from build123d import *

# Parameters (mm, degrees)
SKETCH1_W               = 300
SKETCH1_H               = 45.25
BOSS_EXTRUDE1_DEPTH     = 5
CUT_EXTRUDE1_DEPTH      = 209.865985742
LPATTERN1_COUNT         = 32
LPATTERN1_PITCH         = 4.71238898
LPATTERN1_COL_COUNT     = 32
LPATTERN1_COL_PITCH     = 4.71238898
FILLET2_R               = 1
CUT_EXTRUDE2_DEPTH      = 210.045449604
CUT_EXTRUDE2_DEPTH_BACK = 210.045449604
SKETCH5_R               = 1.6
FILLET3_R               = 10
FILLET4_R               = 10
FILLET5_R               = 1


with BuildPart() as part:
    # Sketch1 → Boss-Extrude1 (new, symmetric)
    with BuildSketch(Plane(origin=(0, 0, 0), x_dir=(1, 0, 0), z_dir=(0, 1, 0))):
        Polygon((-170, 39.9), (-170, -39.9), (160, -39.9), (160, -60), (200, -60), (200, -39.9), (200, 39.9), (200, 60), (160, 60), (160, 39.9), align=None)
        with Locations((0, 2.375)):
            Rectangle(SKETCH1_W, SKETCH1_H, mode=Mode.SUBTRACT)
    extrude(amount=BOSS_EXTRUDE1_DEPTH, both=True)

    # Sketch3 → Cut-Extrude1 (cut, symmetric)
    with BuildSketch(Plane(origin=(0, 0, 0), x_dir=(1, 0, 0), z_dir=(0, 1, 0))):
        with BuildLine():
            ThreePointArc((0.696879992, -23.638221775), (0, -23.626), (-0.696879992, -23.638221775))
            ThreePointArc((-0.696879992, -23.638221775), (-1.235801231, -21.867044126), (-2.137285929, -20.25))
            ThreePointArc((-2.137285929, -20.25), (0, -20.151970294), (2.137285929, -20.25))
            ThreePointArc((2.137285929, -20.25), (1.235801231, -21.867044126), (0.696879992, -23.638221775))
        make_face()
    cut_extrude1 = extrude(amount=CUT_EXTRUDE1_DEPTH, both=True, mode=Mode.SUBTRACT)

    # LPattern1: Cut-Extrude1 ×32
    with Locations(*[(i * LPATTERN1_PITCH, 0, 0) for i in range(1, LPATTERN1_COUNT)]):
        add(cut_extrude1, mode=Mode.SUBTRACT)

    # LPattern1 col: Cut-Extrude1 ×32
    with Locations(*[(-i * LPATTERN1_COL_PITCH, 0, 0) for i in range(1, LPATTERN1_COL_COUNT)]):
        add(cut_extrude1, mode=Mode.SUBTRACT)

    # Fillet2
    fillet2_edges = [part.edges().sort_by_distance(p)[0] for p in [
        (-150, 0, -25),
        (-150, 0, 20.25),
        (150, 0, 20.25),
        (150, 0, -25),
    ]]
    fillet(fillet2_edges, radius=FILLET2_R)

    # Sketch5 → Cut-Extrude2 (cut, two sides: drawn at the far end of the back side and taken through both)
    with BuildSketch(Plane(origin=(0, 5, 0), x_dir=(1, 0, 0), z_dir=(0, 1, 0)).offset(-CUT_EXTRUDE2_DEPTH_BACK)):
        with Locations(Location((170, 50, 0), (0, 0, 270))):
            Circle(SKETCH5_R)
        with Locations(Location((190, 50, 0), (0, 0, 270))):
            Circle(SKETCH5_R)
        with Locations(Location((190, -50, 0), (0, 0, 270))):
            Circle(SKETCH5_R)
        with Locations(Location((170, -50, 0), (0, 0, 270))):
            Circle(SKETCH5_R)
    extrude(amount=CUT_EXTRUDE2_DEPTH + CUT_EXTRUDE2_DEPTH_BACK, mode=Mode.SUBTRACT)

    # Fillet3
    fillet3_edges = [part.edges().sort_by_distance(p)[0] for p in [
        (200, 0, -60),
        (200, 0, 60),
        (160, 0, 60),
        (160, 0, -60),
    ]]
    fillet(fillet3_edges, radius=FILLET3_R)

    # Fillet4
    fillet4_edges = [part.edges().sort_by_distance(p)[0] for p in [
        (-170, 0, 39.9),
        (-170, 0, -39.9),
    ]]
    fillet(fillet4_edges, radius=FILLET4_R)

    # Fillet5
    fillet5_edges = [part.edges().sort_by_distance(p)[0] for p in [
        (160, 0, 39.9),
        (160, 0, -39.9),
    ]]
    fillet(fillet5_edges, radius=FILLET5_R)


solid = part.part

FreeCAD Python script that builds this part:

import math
import FreeCAD as App
import Part
import Sketcher

V = App.Vector


def edges_at(feature, points):
    """Names of the edges that pass closest to the given points."""
    edges = feature.Shape.Edges
    near = lambda p: min(range(len(edges)), key=lambda i: edges[i].distToShape(Part.Vertex(*p))[0])
    return sorted({f"Edge{near(p) + 1}" for p in points})

doc = App.newDocument("Part")
params = doc.addObject("Spreadsheet::Sheet", "Params")
for row, (alias, value) in enumerate([
    ("sketch1_width", "330 mm"),
    ("sketch1_width2", "40 mm"),
    ("sketch1_width3", "300 mm"),
    ("sketch1_height", "120 mm"),
    ("sketch1_height2", "79.8 mm"),
    ("pad1_length", "10 mm"),
    ("sketch2_radius", "8.7 mm"),
    ("pocket1_length", "419.731971 mm"),
    ("linearpattern_pitch", "4.712389 mm"),
    ("linearpattern2_pitch", "4.712389 mm"),
    ("fillet_radius", "1 mm"),
    ("sketch3_diameter", "3.2 mm"),
    ("fillet2_radius", "10 mm"),
    ("fillet3_radius", "10 mm"),
    ("fillet4_radius", "1 mm"),
], start=1):
    params.set(f"A{row}", alias)
    params.set(f"B{row}", "=" + value)
    params.setAlias(f"B{row}", alias)

body = doc.addObject("PartDesign::Body", "Body")

# Sketch on XZ plane
sketch1 = doc.addObject("Sketcher::SketchObject", "Sketch")
body.addObject(sketch1)
sketch1.AttachmentSupport = (doc.XZ_Plane, [""])
sketch1.MapMode = "FlatFace"
sketch1.addGeometry(Part.LineSegment(V(-170, -39.9, 0), V(-170, 39.9, 0)), False)
sketch1.addGeometry(Part.LineSegment(V(-170, 39.9, 0), V(160, 39.9, 0)), False)
sketch1.addGeometry(Part.LineSegment(V(160, 39.9, 0), V(160, 60, 0)), False)
sketch1.addGeometry(Part.LineSegment(V(160, 60, 0), V(200, 60, 0)), False)
sketch1.addGeometry(Part.LineSegment(V(200, 60, 0), V(200, -60, 0)), False)
sketch1.addGeometry(Part.LineSegment(V(200, -60, 0), V(160, -60, 0)), False)
sketch1.addGeometry(Part.LineSegment(V(160, -60, 0), V(160, -39.9, 0)), False)
sketch1.addGeometry(Part.LineSegment(V(160, -39.9, 0), V(-170, -39.9, 0)), False)
sketch1.addGeometry(Part.LineSegment(V(150, 20.25, 0), V(-150, 20.25, 0)), False)
sketch1.addGeometry(Part.LineSegment(V(-150, 20.25, 0), V(-150, -25, 0)), False)
sketch1.addGeometry(Part.LineSegment(V(-150, -25, 0), V(150, -25, 0)), False)
sketch1.addGeometry(Part.LineSegment(V(150, -25, 0), V(150, 20.25, 0)), False)
sketch1.addConstraint(Sketcher.Constraint("Coincident", 0, 2, 1, 1))
sketch1.addConstraint(Sketcher.Constraint("Coincident", 1, 2, 2, 1))
sketch1.addConstraint(Sketcher.Constraint("Coincident", 2, 2, 3, 1))
sketch1.addConstraint(Sketcher.Constraint("Coincident", 3, 2, 4, 1))
sketch1.addConstraint(Sketcher.Constraint("Coincident", 4, 2, 5, 1))
sketch1.addConstraint(Sketcher.Constraint("Coincident", 5, 2, 6, 1))
sketch1.addConstraint(Sketcher.Constraint("Coincident", 6, 2, 7, 1))
sketch1.addConstraint(Sketcher.Constraint("Coincident", 7, 2, 0, 1))
sketch1.addConstraint(Sketcher.Constraint("Coincident", 8, 2, 9, 1))
sketch1.addConstraint(Sketcher.Constraint("Coincident", 9, 2, 10, 1))
sketch1.addConstraint(Sketcher.Constraint("Coincident", 10, 2, 11, 1))
sketch1.addConstraint(Sketcher.Constraint("Coincident", 11, 2, 8, 1))
sketch1.addConstraint(Sketcher.Constraint("Vertical", 0))
sketch1.addConstraint(Sketcher.Constraint("Horizontal", 1))
sketch1.addConstraint(Sketcher.Constraint("Vertical", 2))
sketch1.addConstraint(Sketcher.Constraint("Horizontal", 3))
sketch1.addConstraint(Sketcher.Constraint("Vertical", 4))
sketch1.addConstraint(Sketcher.Constraint("Horizontal", 5))
sketch1.addConstraint(Sketcher.Constraint("Vertical", 6))
sketch1.addConstraint(Sketcher.Constraint("Horizontal", 7))
sketch1.addConstraint(Sketcher.Constraint("Horizontal", 8))
sketch1.addConstraint(Sketcher.Constraint("Vertical", 9))
sketch1.addConstraint(Sketcher.Constraint("Horizontal", 10))
sketch1.addConstraint(Sketcher.Constraint("Vertical", 11))
sketch1.addConstraint(Sketcher.Constraint("Symmetric", 2, 2, 5, 2, -1))
sketch1.addConstraint(Sketcher.Constraint("Equal", 2, 6))
sketch1.addConstraint(Sketcher.Constraint("DistanceX", 1, 1, 1, 2, 330.0))
sketch1.addConstraint(Sketcher.Constraint("DistanceX", 3, 1, 3, 2, 40.0))
sketch1.addConstraint(Sketcher.Constraint("DistanceX", 8, 2, 8, 1, 300.0))
sketch1.addConstraint(Sketcher.Constraint("DistanceY", 4, 2, 4, 1, 120.0))
sketch1.addConstraint(Sketcher.Constraint("DistanceY", 0, 1, 0, 2, 79.8))
sketch1.addConstraint(Sketcher.Constraint("DistanceX", 0, 2, -1, 1, 170.0))
sketch1.addConstraint(Sketcher.Constraint("DistanceX", 8, 2, -1, 1, 150.0))
sketch1.addConstraint(Sketcher.Constraint("DistanceY", 9, 2, -1, 1, 25.0))
sketch1.addConstraint(Sketcher.Constraint("DistanceY", 9, 2, 9, 1, 45.25))
sketch1.setExpression("Constraints[26]", "Params.sketch1_width")
sketch1.setExpression("Constraints[27]", "Params.sketch1_width2")
sketch1.setExpression("Constraints[28]", "Params.sketch1_width3")
sketch1.setExpression("Constraints[29]", "Params.sketch1_height")
sketch1.setExpression("Constraints[30]", "Params.sketch1_height2")
pad1 = doc.addObject("PartDesign::Pad", "Pad")
body.addObject(pad1)
pad1.Profile = sketch1
pad1.setExpression("Length", "Params.pad1_length")
pad1.Midplane = True

# Sketch on XZ plane
sketch2 = doc.addObject("Sketcher::SketchObject", "Sketch001")
body.addObject(sketch2)
sketch2.AttachmentSupport = (doc.XZ_Plane, [""])
sketch2.MapMode = "FlatFace"
sketch2.addGeometry(Part.ArcOfCircle(Part.Circle(V(0, 43.499999, 0), V(0, 0, 1), 19.873999), math.radians(-92.009483), math.radians(-87.990517)), False)
sketch2.addGeometry(Part.ArcOfCircle(Part.Circle(V(9.24233, 25.270792, 0), V(0, 0, 1), 8.7), math.radians(-169.184228), math.radians(-144.752996)), False)
sketch2.addGeometry(Part.ArcOfCircle(Part.Circle(V(0, 43.5, 0), V(0, 0, 1), 23.34803), math.radians(-95.252226), math.radians(-84.747774)), False)
sketch2.addGeometry(Part.ArcOfCircle(Part.Circle(V(-9.24233, 25.270792, 0), V(0, 0, 1), 8.7), math.radians(-35.247004), math.radians(-10.815772)), False)
sketch2.addConstraint(Sketcher.Constraint("Coincident", 0, 2, 1, 1))
sketch2.addConstraint(Sketcher.Constraint("Coincident", 1, 2, 2, 2))
sketch2.addConstraint(Sketcher.Constraint("Coincident", 2, 1, 3, 1))
sketch2.addConstraint(Sketcher.Constraint("Coincident", 3, 2, 0, 1))
sketch2.addConstraint(Sketcher.Constraint("Coincident", 2, 3, 0, 3))
sketch2.addConstraint(Sketcher.Constraint("Equal", 1, 3))
sketch2.addConstraint(Sketcher.Constraint("Symmetric", 1, 3, 3, 3, -2))
sketch2.addConstraint(Sketcher.Constraint("PointOnObject", 0, 3, -2))
sketch2.addConstraint(Sketcher.Constraint("Radius", 1, 8.7))
sketch2.addConstraint(Sketcher.Constraint("Radius", 0, 19.873999))
sketch2.addConstraint(Sketcher.Constraint("DistanceY", -1, 1, 0, 3, 43.499999))
sketch2.addConstraint(Sketcher.Constraint("DistanceY", -1, 1, 1, 2, 20.25))
sketch2.addConstraint(Sketcher.Constraint("Radius", 2, 23.34803))
sketch2.addConstraint(Sketcher.Constraint("DistanceX", -1, 1, 1, 3, 9.24233))
sketch2.setExpression("Constraints[8]", "Params.sketch2_radius")
pocket1 = doc.addObject("PartDesign::Pocket", "Pocket")
body.addObject(pocket1)
pocket1.Profile = sketch2
pocket1.setExpression("Length", "Params.pocket1_length")
pocket1.Midplane = True
doc.recompute()

linearpattern = doc.addObject("PartDesign::LinearPattern", "LinearPattern")
body.addObject(linearpattern)
linearpattern.Originals = [pocket1]
linearpattern.Direction = (doc.X_Axis, [""])
linearpattern.Mode = "offset"
linearpattern.setExpression("Offset", "Params.linearpattern_pitch")
linearpattern.Occurrences = 32
body.Tip = linearpattern
doc.recompute()

linearpattern2 = doc.addObject("PartDesign::LinearPattern", "LinearPattern001")
body.addObject(linearpattern2)
linearpattern2.Originals = [pocket1]
linearpattern2.Direction = (doc.X_Axis, [""])
linearpattern2.Mode = "offset"
linearpattern2.setExpression("Offset", "Params.linearpattern2_pitch")
linearpattern2.Occurrences = 32
linearpattern2.Reversed = True
body.Tip = linearpattern2
doc.recompute()

fillet = doc.addObject("PartDesign::Fillet", "Fillet")
body.addObject(fillet)
fillet.Base = (linearpattern2, edges_at(linearpattern2, [
    (-150, 0, -25),
    (-150, 0, 20.25),
    (150, 0, 20.25),
    (150, 0, -25),
]))
fillet.setExpression("Radius", "Params.fillet_radius")

# Sketch on XZ plane
sketch3 = doc.addObject("Sketcher::SketchObject", "Sketch002")
body.addObject(sketch3)
sketch3.AttachmentSupport = (doc.XZ_Plane, [""])
sketch3.MapMode = "FlatFace"
sketch3.AttachmentOffset = App.Placement(V(0, 0, -5), App.Rotation())
sketch3.addGeometry(Part.Circle(V(170, -50, 0), V(0, 0, 1), 1.6), False)
sketch3.addGeometry(Part.Circle(V(190, -50, 0), V(0, 0, 1), 1.6), False)
sketch3.addGeometry(Part.Circle(V(190, 50, 0), V(0, 0, 1), 1.6), False)
sketch3.addGeometry(Part.Circle(V(170, 50, 0), V(0, 0, 1), 1.6), False)
sketch3.addConstraint(Sketcher.Constraint("Equal", 0, 1))
sketch3.addConstraint(Sketcher.Constraint("Equal", 1, 2))
sketch3.addConstraint(Sketcher.Constraint("Equal", 2, 3))
sketch3.addConstraint(Sketcher.Constraint("Symmetric", 1, 3, 2, 3, -1))
sketch3.addConstraint(Sketcher.Constraint("Symmetric", 0, 3, 3, 3, -1))
sketch3.addConstraint(Sketcher.Constraint("Horizontal", 0, 3, 1, 3))
sketch3.addConstraint(Sketcher.Constraint("Diameter", 0, 3.2))
sketch3.addConstraint(Sketcher.Constraint("DistanceX", -1, 1, 0, 3, 170.0))
sketch3.addConstraint(Sketcher.Constraint("DistanceY", 0, 3, -1, 1, 50.0))
sketch3.addConstraint(Sketcher.Constraint("DistanceX", -1, 1, 1, 3, 190.0))
sketch3.setExpression("Constraints[6]", "Params.sketch3_diameter")
pocket2 = doc.addObject("PartDesign::Pocket", "Pocket001")
body.addObject(pocket2)
pocket2.Profile = sketch3
pocket2.Type = "ThroughAll"
pocket2.Midplane = True
doc.recompute()

fillet2 = doc.addObject("PartDesign::Fillet", "Fillet001")
body.addObject(fillet2)
fillet2.Base = (pocket2, edges_at(pocket2, [
    (200, 0, -60),
    (200, 0, 60),
    (160, 0, 60),
    (160, 0, -60),
]))
fillet2.setExpression("Radius", "Params.fillet2_radius")
doc.recompute()

fillet3 = doc.addObject("PartDesign::Fillet", "Fillet002")
body.addObject(fillet3)
fillet3.Base = (fillet2, edges_at(fillet2, [(-170, 0, 39.9), (-170, 0, -39.9)]))
fillet3.setExpression("Radius", "Params.fillet3_radius")
doc.recompute()

fillet4 = doc.addObject("PartDesign::Fillet", "Fillet003")
body.addObject(fillet4)
fillet4.Base = (fillet3, edges_at(fillet3, [(160, 0, 39.9), (160, 0, -39.9)]))
fillet4.setExpression("Radius", "Params.fillet4_radius")

doc.recompute()
